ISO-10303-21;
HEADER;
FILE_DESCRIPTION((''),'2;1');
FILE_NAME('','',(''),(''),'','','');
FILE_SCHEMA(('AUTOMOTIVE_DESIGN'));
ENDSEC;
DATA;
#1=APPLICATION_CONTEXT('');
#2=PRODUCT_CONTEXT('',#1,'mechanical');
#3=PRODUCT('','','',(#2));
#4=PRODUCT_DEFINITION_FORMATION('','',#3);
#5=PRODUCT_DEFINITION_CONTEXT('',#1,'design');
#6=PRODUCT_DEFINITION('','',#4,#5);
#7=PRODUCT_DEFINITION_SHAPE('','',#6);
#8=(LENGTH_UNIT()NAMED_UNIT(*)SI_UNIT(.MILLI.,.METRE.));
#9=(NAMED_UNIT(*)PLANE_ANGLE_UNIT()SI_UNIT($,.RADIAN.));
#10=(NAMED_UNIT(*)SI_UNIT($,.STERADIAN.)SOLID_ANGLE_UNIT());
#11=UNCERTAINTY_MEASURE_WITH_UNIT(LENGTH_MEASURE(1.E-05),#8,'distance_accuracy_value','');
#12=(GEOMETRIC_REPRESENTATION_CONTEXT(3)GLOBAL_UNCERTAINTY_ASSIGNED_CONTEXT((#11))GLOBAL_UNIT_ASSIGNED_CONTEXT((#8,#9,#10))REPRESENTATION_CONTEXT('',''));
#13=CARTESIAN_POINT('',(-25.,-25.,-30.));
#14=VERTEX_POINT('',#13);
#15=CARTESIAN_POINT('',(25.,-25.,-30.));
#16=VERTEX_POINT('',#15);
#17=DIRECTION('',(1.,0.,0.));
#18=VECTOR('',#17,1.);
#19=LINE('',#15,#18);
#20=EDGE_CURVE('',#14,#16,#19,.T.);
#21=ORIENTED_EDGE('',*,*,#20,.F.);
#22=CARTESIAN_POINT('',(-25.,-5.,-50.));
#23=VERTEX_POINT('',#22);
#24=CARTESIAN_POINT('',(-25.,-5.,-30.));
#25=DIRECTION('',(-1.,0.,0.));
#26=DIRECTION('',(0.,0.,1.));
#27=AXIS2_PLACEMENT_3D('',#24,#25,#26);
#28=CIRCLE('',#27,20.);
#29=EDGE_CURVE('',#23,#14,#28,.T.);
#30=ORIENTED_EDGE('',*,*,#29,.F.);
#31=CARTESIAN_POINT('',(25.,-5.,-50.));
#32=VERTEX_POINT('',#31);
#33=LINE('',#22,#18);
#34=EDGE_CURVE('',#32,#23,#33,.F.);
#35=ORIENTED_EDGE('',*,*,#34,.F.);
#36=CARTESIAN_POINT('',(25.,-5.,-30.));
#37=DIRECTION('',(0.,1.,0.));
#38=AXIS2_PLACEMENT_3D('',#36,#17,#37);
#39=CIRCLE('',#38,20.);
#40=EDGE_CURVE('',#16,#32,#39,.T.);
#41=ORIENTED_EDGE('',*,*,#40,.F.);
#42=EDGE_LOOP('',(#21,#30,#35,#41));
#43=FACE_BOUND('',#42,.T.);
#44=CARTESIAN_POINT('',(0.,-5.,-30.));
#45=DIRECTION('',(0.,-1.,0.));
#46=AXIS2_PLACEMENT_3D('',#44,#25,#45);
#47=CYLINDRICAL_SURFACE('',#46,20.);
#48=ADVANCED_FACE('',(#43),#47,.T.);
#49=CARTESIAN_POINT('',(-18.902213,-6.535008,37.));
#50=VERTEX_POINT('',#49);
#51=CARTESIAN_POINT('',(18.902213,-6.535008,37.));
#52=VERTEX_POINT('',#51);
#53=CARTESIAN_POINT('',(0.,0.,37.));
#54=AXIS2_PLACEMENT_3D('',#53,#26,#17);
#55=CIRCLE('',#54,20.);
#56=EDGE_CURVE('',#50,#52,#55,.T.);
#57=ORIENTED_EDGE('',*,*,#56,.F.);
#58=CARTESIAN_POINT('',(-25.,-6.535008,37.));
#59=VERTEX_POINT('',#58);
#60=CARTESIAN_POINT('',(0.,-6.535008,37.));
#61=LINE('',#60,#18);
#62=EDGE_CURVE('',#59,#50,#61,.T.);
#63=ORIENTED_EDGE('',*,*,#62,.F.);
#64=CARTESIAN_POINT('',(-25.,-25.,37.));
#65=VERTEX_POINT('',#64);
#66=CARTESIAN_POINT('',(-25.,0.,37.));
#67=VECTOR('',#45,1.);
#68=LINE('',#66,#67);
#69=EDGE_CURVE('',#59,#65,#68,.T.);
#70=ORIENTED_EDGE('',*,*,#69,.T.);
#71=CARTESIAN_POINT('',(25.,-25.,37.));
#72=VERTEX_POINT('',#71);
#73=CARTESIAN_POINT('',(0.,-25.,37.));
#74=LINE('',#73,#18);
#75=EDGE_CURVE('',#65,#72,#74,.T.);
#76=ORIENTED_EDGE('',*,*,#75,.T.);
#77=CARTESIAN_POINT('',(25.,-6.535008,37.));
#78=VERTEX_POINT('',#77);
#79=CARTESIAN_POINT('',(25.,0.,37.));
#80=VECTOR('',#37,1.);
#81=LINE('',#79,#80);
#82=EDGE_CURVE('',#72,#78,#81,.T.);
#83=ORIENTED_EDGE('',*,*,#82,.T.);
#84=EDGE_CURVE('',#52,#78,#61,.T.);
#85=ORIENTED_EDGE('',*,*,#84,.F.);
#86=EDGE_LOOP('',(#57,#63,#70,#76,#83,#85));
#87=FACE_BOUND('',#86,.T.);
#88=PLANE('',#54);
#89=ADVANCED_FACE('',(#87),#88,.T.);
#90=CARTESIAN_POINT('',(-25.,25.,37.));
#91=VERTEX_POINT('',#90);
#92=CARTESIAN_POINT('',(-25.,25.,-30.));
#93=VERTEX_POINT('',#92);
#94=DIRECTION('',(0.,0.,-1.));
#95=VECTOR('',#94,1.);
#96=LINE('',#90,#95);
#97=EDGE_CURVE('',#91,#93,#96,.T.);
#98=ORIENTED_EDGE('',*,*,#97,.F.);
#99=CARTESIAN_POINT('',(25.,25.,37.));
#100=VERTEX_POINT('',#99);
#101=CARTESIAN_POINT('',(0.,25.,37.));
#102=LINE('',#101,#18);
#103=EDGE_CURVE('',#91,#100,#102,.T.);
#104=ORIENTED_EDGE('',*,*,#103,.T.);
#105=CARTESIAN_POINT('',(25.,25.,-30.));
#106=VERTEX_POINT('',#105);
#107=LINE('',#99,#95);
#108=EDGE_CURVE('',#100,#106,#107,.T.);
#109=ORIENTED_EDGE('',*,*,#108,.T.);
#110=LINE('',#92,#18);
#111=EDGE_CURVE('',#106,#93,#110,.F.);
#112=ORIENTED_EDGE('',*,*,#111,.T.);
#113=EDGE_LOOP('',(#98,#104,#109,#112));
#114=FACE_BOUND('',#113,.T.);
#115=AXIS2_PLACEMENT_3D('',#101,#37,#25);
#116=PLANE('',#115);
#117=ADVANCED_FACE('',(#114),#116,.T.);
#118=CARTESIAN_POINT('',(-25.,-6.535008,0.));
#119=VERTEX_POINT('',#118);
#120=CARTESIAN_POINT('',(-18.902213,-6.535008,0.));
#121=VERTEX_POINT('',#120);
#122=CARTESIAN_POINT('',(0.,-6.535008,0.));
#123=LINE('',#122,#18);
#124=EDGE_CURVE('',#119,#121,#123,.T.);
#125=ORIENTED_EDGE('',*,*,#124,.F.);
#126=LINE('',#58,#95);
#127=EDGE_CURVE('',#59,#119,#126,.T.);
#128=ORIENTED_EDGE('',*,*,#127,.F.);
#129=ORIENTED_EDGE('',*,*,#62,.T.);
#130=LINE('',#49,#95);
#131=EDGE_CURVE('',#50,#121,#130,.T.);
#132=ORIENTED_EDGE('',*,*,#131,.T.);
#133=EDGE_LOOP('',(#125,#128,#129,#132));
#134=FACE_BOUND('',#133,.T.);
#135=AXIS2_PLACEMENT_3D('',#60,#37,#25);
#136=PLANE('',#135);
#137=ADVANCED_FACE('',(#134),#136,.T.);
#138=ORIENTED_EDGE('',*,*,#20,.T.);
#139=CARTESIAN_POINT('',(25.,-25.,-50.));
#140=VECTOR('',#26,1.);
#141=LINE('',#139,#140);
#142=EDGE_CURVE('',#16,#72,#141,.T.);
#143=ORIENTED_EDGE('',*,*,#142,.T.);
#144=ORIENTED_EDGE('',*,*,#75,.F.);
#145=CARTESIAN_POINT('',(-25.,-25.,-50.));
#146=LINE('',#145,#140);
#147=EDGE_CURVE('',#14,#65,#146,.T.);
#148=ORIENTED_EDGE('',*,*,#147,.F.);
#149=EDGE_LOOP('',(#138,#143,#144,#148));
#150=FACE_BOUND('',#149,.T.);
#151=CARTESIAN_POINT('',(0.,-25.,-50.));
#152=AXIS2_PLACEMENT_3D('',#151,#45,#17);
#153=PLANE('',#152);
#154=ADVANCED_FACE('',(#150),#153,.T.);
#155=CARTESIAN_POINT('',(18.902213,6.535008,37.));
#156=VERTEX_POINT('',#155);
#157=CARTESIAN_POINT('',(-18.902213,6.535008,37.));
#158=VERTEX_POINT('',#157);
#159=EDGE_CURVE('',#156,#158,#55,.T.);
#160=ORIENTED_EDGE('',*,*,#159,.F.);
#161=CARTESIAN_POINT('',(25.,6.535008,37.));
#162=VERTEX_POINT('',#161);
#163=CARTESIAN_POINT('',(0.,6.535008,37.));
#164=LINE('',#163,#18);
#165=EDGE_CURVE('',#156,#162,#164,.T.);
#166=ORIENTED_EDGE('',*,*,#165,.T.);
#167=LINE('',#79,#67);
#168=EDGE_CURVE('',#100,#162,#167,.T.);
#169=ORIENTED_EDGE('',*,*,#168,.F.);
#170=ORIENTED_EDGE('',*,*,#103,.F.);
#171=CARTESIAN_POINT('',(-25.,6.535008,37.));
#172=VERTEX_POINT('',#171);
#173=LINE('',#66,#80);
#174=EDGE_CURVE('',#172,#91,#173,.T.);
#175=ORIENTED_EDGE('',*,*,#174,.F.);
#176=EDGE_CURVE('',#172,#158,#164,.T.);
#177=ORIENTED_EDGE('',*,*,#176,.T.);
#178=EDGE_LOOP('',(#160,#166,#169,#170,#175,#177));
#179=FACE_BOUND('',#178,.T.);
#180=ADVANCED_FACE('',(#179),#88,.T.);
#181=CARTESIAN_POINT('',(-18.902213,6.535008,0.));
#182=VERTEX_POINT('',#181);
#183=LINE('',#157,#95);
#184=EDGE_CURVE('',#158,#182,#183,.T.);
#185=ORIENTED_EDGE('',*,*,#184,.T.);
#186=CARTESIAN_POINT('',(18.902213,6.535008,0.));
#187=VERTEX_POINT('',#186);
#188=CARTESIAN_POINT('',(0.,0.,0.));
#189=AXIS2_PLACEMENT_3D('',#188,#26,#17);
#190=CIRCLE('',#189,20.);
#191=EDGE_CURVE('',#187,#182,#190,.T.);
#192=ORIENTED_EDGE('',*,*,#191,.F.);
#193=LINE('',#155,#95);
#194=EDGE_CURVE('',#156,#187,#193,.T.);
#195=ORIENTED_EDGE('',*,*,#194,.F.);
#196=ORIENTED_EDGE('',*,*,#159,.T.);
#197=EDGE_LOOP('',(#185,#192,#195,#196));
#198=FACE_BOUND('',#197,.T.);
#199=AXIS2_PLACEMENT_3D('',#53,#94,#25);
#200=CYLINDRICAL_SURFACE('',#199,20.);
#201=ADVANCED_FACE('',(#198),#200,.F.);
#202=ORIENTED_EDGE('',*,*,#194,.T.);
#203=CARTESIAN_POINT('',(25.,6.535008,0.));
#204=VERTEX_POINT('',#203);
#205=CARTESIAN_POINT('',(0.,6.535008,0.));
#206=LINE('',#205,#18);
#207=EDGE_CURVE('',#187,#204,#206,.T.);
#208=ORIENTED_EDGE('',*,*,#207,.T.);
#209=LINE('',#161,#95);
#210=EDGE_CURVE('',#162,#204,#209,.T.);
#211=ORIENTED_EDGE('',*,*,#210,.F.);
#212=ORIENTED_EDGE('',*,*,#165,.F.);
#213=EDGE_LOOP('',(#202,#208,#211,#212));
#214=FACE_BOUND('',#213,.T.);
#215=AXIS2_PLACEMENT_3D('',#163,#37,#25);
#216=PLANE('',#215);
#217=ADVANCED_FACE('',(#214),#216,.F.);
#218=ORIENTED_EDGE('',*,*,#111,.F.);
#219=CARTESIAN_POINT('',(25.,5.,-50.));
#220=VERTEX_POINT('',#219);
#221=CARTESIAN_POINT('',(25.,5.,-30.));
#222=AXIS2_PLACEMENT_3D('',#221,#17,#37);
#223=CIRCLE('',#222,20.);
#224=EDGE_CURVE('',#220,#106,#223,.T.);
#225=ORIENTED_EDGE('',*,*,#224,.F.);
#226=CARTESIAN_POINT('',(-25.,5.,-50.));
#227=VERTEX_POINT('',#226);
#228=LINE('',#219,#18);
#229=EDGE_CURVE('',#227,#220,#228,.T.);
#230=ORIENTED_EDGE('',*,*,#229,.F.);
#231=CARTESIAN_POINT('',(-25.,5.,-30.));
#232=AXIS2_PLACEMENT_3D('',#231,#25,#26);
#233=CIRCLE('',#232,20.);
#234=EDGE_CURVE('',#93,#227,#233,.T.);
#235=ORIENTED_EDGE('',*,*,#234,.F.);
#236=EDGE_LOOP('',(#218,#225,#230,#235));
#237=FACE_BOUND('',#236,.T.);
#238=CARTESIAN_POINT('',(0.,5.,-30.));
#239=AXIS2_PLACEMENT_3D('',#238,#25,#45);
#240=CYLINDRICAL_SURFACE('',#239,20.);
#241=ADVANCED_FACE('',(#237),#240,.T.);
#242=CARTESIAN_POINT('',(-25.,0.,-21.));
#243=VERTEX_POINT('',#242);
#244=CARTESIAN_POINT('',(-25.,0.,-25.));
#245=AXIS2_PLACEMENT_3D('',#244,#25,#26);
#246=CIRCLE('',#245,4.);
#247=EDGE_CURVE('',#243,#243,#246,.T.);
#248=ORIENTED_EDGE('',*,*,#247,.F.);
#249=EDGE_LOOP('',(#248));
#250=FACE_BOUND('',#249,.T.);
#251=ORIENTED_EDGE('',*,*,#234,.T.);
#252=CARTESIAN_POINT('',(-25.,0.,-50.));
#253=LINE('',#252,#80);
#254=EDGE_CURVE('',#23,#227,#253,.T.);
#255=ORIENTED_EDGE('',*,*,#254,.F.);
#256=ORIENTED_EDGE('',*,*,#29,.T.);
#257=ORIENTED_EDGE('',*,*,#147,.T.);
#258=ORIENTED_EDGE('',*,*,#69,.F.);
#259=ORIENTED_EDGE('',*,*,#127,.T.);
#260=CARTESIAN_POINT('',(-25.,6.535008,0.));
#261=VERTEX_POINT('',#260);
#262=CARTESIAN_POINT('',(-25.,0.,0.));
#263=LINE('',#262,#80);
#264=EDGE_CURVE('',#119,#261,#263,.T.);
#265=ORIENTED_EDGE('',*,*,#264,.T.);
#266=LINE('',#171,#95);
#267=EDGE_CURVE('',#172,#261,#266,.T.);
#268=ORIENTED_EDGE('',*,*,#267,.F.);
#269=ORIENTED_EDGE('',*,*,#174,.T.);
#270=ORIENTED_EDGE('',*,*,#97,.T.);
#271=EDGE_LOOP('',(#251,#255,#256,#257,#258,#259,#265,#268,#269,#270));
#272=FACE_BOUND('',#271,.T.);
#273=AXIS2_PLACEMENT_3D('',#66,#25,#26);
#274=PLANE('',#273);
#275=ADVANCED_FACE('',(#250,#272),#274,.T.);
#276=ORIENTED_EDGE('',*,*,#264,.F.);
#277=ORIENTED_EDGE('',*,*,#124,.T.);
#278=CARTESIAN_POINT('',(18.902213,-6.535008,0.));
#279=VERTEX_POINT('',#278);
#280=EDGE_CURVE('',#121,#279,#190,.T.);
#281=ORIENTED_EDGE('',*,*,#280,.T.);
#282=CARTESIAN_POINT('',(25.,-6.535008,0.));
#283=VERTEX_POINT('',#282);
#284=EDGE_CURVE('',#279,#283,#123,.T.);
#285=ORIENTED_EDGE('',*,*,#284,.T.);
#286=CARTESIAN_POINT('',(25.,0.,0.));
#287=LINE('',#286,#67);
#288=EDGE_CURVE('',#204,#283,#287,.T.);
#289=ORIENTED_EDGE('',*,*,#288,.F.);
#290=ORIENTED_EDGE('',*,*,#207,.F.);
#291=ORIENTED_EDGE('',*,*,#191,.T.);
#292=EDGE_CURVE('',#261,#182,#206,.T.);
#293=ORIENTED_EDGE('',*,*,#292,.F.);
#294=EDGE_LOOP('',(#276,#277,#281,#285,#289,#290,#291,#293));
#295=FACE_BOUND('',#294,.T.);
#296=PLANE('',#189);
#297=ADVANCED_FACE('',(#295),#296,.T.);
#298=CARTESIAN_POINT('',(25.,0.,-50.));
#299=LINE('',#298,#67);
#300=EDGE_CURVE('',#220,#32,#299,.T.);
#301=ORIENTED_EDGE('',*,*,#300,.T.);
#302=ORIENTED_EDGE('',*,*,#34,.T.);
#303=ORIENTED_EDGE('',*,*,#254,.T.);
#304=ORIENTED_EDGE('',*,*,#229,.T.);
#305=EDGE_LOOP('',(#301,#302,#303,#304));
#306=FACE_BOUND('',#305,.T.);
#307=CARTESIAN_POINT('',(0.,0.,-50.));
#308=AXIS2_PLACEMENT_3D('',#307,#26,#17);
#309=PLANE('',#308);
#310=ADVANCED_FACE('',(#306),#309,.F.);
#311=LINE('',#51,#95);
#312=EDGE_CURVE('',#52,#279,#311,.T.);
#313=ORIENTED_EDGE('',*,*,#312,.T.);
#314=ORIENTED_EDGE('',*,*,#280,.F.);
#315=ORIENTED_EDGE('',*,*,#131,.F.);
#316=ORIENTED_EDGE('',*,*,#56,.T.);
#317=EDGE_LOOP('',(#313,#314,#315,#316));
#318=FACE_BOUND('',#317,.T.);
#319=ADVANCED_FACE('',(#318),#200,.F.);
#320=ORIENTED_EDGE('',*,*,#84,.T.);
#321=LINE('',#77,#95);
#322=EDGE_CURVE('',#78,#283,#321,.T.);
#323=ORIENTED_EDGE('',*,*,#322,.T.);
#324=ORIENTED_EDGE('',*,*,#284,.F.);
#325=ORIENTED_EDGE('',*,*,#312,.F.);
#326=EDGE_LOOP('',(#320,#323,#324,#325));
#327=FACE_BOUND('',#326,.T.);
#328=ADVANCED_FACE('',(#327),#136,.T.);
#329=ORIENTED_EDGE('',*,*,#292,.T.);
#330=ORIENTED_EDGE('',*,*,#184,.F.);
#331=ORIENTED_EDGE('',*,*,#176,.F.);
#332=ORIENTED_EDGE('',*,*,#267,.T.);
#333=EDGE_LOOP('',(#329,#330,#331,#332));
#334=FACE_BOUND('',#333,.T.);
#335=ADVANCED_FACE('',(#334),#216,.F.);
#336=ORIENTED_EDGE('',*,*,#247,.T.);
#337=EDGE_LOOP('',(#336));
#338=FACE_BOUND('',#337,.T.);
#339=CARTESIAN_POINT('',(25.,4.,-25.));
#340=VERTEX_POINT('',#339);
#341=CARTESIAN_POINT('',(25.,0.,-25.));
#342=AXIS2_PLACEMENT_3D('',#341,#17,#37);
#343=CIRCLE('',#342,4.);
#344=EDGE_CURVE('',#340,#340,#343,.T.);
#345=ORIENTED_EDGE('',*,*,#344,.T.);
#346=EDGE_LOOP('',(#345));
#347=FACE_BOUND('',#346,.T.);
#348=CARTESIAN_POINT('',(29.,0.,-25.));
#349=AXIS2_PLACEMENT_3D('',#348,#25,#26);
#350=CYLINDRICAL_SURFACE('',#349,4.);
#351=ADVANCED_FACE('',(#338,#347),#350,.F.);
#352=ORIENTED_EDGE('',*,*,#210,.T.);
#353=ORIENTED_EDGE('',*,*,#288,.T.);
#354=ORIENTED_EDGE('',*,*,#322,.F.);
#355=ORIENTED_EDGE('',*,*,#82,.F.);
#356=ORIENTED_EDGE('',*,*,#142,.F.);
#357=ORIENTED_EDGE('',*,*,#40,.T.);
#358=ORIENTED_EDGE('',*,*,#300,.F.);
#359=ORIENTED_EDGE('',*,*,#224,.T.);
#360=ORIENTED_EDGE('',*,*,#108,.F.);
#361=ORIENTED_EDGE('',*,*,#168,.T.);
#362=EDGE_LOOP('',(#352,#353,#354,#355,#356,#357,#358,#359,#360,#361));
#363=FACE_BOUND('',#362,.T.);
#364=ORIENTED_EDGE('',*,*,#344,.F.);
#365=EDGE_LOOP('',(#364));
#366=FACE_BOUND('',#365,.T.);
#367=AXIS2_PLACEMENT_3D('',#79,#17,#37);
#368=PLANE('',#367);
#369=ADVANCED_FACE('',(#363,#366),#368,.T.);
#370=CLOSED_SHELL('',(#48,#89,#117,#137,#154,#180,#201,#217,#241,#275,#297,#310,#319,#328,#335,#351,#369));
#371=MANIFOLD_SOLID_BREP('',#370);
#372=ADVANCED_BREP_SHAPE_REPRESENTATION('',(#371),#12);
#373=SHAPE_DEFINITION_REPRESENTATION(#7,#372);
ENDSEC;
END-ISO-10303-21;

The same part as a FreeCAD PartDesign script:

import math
import FreeCAD as App
import Part
import Sketcher
from FreeCAD import Vector


def edges_at(feature, points):
    """Names of the edges that pass closest to the given points."""
    edges = feature.Shape.Edges
    near = lambda p: min(range(len(edges)), key=lambda i: edges[i].distToShape(Part.Vertex(*p))[0])
    return sorted({f"Edge{near(p) + 1}" for p in points})


def add_polygon(sketch, points):
    """Adds a closed chain of lines whose ends are joined by coincident constraints."""
    first, n = sketch.GeometryCount, len(points)
    for a, b in zip(points, points[1:] + points[:1]):
        sketch.addGeometry(Part.LineSegment(App.Vector(*a, 0), App.Vector(*b, 0)), False)
    for i in range(n):
        sketch.addConstraint(Sketcher.Constraint("Coincident", first + i, 2, first + (i + 1) % n, 1))

doc = App.newDocument("Part")
body = doc.addObject("PartDesign::Body", "Body")

# Sketch on XY plane
sketch1 = body.newObject("Sketcher::SketchObject", "Sketch")
sketch1.AttachmentSupport = (doc.getObject("XY_Plane"), [""])
sketch1.MapMode = "FlatFace"
sketch1.addGeometry(Part.LineSegment(Vector(-25, 25, 0), Vector(-25, 7, 0)), False)
sketch1.addGeometry(Part.LineSegment(Vector(-25, 7, 0), Vector(-19, 7, 0)), False)
sketch1.addGeometry(Part.ArcOfCircle(Part.Circle(Vector(0, 0, 0), Vector(0, 0, 1), 20), math.radians(19), math.radians(161)), False)
sketch1.addGeometry(Part.LineSegment(Vector(19, 7, 0), Vector(25, 7, 0)), False)
sketch1.addGeometry(Part.LineSegment(Vector(25, 7, 0), Vector(25, 25, 0)), False)
sketch1.addGeometry(Part.LineSegment(Vector(25, 25, 0), Vector(-25, 25, 0)), False)
sketch1.addConstraint(Sketcher.Constraint("Coincident", 0, 2, 1, 1))
sketch1.addConstraint(Sketcher.Constraint("Coincident", 1, 2, 2, 2))
sketch1.addConstraint(Sketcher.Constraint("Coincident", 2, 1, 3, 1))
sketch1.addConstraint(Sketcher.Constraint("Coincident", 3, 2, 4, 1))
sketch1.addConstraint(Sketcher.Constraint("Coincident", 4, 2, 5, 1))
sketch1.addConstraint(Sketcher.Constraint("Coincident", 5, 2, 0, 1))
sketch1.addConstraint(Sketcher.Constraint("Vertical", 0))
sketch1.addConstraint(Sketcher.Constraint("Horizontal", 1))
sketch1.addConstraint(Sketcher.Constraint("Horizontal", 3))
sketch1.addConstraint(Sketcher.Constraint("Vertical", 4))
sketch1.addConstraint(Sketcher.Constraint("Horizontal", 5))
sketch1.addConstraint(Sketcher.Constraint("Coincident", 2, 3, -1, 1))
sketch1.addConstraint(Sketcher.Constraint("Symmetric", 0, 2, 3, 2, -2))
sketch1.addConstraint(Sketcher.Constraint("Radius", 2, 20.0))
sketch1.addConstraint(Sketcher.Constraint("DistanceX", 5, 2, 5, 1, 50.0))
sketch1.addConstraint(Sketcher.Constraint("DistanceY", -1, 1, 4, 2, 25.0))
sketch1.addConstraint(Sketcher.Constraint("DistanceY", 0, 2, 0, 1, 18.464992))
pad1 = body.newObject("PartDesign::Pad", "Pad")
pad1.Profile = sketch1
pad1.Length = 37
body2 = doc.addObject("PartDesign::Body", "Body001")

# Sketch on XY plane
sketch2 = body2.newObject("Sketcher::SketchObject", "Sketch001")
sketch2.AttachmentSupport = (doc.getObject("XY_Plane001"), [""])
sketch2.MapMode = "FlatFace"
sketch2.addGeometry(Part.LineSegment(Vector(-19, -7, 0), Vector(-25, -7, 0)), False)
sketch2.addGeometry(Part.LineSegment(Vector(-25, -7, 0), Vector(-25, -25, 0)), False)
sketch2.addGeometry(Part.LineSegment(Vector(-25, -25, 0), Vector(25, -25, 0)), False)
sketch2.addGeometry(Part.LineSegment(Vector(25, -25, 0), Vector(25, -7, 0)), False)
sketch2.addGeometry(Part.LineSegment(Vector(25, -7, 0), Vector(19, -7, 0)), False)
sketch2.addGeometry(Part.ArcOfCircle(Part.Circle(Vector(0, 0, 0), Vector(0, 0, 1), 20), math.radians(-161), math.radians(-19)), False)
sketch2.addConstraint(Sketcher.Constraint("Coincident", 0, 2, 1, 1))
sketch2.addConstraint(Sketcher.Constraint("Coincident", 1, 2, 2, 1))
sketch2.addConstraint(Sketcher.Constraint("Coincident", 2, 2, 3, 1))
sketch2.addConstraint(Sketcher.Constraint("Coincident", 3, 2, 4, 1))
sketch2.addConstraint(Sketcher.Constraint("Coincident", 4, 2, 5, 2))
sketch2.addConstraint(Sketcher.Constraint("Coincident", 5, 1, 0, 1))
sketch2.addConstraint(Sketcher.Constraint("Horizontal", 0))
sketch2.addConstraint(Sketcher.Constraint("Vertical", 1))
sketch2.addConstraint(Sketcher.Constraint("Horizontal", 2))
sketch2.addConstraint(Sketcher.Constraint("Vertical", 3))
sketch2.addConstraint(Sketcher.Constraint("Horizontal", 4))
sketch2.addConstraint(Sketcher.Constraint("Coincident", 5, 3, -1, 1))
sketch2.addConstraint(Sketcher.Constraint("Symmetric", 0, 2, 3, 2, -2))
sketch2.addConstraint(Sketcher.Constraint("Radius", 5, 20.0))
sketch2.addConstraint(Sketcher.Constraint("DistanceX", 2, 1, 2, 2, 50.0))
sketch2.addConstraint(Sketcher.Constraint("DistanceY", 1, 2, -1, 1, 25.0))
sketch2.addConstraint(Sketcher.Constraint("DistanceY", 1, 2, 1, 1, 18.464992))
pad2 = body2.newObject("PartDesign::Pad", "Pad001")
pad2.Profile = sketch2
pad2.Length = 37
body.AllowCompound = True
doc.recompute()

boolean = body.newObject("PartDesign::Boolean", "Boolean")
boolean.Type = "Fuse"
boolean.addObjects([body2])

# Sketch on XY plane
sketch3 = body.newObject("Sketcher::SketchObject", "Sketch002")
sketch3.AttachmentSupport = (doc.getObject("XY_Plane"), [""])
sketch3.MapMode = "FlatFace"
add_polygon(sketch3, [(25, 25), (-25, 25), (-25, -25), (25, -25)])  # lines 0-3
sketch3.addConstraint(Sketcher.Constraint("Horizontal", 0))
sketch3.addConstraint(Sketcher.Constraint("Vertical", 1))
sketch3.addConstraint(Sketcher.Constraint("Horizontal", 2))
sketch3.addConstraint(Sketcher.Constraint("Vertical", 3))
sketch3.addConstraint(Sketcher.Constraint("Symmetric", 0, 2, 2, 2, -1, 1))
sketch3.addConstraint(Sketcher.Constraint("Equal", 2, 1))
sketch3.addConstraint(Sketcher.Constraint("DistanceX", 0, 2, 0, 1, 50.0))
pad3 = body.newObject("PartDesign::Pad", "Pad002")
pad3.Profile = sketch3
pad3.Length = 50
pad3.Reversed = True

# Sketch on YZ plane
sketch4 = body.newObject("Sketcher::SketchObject", "Sketch003")
sketch4.AttachmentSupport = (doc.getObject("YZ_Plane"), [""])
sketch4.MapMode = "FlatFace"
sketch4.AttachmentOffset = App.Placement(Vector(0, 0, -25), App.Rotation())
sketch4.addGeometry(Part.Circle(Vector(0, -25, 0), Vector(0, 0, 1), 4), False)
sketch4.addConstraint(Sketcher.Constraint("PointOnObject", 0, 3, -2))
sketch4.addConstraint(Sketcher.Constraint("Diameter", 0, 8.0))
sketch4.addConstraint(Sketcher.Constraint("DistanceY", 0, 3, -1, 1, 25.0))
pocket1 = body.newObject("PartDesign::Pocket", "Pocket")
pocket1.Profile = sketch4
pocket1.Length = 54
pocket1.Reversed = True
doc.recompute()

fillet = body.newObject("PartDesign::Fillet", "Fillet")
fillet.Base = (pocket1, edges_at(pocket1, [(0, -25, -50), (0, 25, -50)]))
fillet.Radius = 20

doc.recompute()
